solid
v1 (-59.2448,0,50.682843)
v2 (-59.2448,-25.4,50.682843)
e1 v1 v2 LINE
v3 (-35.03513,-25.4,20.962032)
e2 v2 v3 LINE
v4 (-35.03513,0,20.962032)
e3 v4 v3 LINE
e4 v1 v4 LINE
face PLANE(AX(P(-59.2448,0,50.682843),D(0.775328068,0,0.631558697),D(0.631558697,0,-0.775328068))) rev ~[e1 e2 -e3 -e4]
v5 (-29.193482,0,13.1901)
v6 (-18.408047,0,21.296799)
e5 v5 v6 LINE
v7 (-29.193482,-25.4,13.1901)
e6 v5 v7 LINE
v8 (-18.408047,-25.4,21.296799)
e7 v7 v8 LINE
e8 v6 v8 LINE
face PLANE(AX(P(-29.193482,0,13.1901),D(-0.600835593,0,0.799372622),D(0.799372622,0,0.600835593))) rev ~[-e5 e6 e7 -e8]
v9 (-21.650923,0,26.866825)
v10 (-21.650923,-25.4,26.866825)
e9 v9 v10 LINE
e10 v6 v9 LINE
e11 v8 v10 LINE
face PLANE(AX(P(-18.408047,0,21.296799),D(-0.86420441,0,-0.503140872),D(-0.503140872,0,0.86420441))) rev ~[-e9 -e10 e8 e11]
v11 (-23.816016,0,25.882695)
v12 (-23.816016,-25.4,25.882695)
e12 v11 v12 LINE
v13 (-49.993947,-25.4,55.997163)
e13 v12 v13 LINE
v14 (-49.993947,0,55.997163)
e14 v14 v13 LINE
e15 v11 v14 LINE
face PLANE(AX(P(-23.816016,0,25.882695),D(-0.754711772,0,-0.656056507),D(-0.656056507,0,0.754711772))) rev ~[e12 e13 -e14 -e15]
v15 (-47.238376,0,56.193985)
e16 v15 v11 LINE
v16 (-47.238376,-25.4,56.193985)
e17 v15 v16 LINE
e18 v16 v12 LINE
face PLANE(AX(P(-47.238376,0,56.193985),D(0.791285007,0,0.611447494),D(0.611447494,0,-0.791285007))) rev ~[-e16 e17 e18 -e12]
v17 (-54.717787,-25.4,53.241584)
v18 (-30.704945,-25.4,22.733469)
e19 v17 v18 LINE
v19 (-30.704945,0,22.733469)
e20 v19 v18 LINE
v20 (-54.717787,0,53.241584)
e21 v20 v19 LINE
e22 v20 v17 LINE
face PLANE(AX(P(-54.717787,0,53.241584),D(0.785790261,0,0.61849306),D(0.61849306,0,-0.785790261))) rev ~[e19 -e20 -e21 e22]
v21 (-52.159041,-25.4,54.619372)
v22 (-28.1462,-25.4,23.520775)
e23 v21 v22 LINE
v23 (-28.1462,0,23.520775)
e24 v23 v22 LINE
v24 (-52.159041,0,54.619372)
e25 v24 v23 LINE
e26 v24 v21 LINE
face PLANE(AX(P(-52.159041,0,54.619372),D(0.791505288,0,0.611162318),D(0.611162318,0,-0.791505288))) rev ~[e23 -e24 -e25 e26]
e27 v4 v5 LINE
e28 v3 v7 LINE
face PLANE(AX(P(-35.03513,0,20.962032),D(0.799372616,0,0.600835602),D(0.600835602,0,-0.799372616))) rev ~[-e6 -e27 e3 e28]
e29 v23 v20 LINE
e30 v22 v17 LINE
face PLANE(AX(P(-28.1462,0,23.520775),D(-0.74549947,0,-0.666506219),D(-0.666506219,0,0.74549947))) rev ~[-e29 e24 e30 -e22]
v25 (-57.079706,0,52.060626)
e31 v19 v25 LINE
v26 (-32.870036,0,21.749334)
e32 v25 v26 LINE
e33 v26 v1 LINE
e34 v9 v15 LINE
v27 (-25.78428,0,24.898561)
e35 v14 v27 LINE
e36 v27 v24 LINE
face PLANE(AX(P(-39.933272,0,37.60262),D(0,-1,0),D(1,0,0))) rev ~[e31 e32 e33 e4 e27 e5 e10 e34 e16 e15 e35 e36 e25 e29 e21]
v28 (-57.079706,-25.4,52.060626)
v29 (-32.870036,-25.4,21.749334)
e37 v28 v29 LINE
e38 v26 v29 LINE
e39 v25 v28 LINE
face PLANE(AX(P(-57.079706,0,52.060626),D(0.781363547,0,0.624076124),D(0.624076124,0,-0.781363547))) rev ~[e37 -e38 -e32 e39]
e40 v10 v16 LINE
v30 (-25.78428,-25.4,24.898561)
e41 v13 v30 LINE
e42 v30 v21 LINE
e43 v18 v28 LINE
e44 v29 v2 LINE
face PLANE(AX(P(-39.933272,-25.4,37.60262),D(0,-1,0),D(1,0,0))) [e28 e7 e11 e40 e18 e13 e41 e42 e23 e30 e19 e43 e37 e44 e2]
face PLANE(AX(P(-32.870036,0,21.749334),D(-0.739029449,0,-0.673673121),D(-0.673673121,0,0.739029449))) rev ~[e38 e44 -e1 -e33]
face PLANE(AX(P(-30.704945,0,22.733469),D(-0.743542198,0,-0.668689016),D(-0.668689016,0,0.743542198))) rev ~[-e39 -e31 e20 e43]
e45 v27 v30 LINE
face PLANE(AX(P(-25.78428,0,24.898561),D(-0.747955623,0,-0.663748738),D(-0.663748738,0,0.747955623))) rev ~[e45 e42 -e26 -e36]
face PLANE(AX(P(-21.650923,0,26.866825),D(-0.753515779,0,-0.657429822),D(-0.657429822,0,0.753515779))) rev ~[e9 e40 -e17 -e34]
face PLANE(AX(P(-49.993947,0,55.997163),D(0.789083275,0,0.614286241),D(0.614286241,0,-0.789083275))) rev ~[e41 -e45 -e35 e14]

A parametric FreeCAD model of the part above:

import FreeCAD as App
import Part
import Sketcher
Q = App.Units.Quantity

doc = App.newDocument("Part")
body = doc.addObject("PartDesign::Body", "Body")

sketch1 = body.newObject("Sketcher::SketchObject", "Sketch")
sketch1.AttachmentSupport = (doc.getObject("XZ_Plane"), [""])
sketch1.MapMode = "FlatFace"
sketch1.addGeometry(Part.LineSegment(App.Vector(-59, 51, 0), App.Vector(-35, 21, 0)), False)
sketch1.addGeometry(Part.LineSegment(App.Vector(-35, 21, 0), App.Vector(-29, 13, 0)), False)
sketch1.addGeometry(Part.LineSegment(App.Vector(-29, 13, 0), App.Vector(-18, 21, 0)), False)
sketch1.addGeometry(Part.LineSegment(App.Vector(-18, 21, 0), App.Vector(-22, 27, 0)), False)
sketch1.addGeometry(Part.LineSegment(App.Vector(-22, 27, 0), App.Vector(-47, 56, 0)), False)
sketch1.addGeometry(Part.LineSegment(App.Vector(-47, 56, 0), App.Vector(-24, 26, 0)), False)
sketch1.addGeometry(Part.LineSegment(App.Vector(-24, 26, 0), App.Vector(-50, 56, 0)), False)
sketch1.addGeometry(Part.LineSegment(App.Vector(-50, 56, 0), App.Vector(-26, 25, 0)), False)
sketch1.addGeometry(Part.LineSegment(App.Vector(-26, 25, 0), App.Vector(-52, 55, 0)), False)
sketch1.addGeometry(Part.LineSegment(App.Vector(-52, 55, 0), App.Vector(-28, 24, 0)), False)
sketch1.addGeometry(Part.LineSegment(App.Vector(-28, 24, 0), App.Vector(-55, 53, 0)), False)
sketch1.addGeometry(Part.LineSegment(App.Vector(-55, 53, 0), App.Vector(-31, 23, 0)), False)
sketch1.addGeometry(Part.LineSegment(App.Vector(-31, 23, 0), App.Vector(-57, 52, 0)), False)
sketch1.addGeometry(Part.LineSegment(App.Vector(-57, 52, 0), App.Vector(-33, 22, 0)), False)
sketch1.addGeometry(Part.LineSegment(App.Vector(-33, 22, 0), App.Vector(-59, 51, 0)), False)
sketch1.addConstraint(Sketcher.Constraint("Coincident", 0, 2, 1, 1))
sketch1.addConstraint(Sketcher.Constraint("Coincident", 1, 2, 2, 1))
sketch1.addConstraint(Sketcher.Constraint("Coincident", 2, 2, 3, 1))
sketch1.addConstraint(Sketcher.Constraint("Coincident", 3, 2, 4, 1))
sketch1.addConstraint(Sketcher.Constraint("Coincident", 4, 2, 5, 1))
sketch1.addConstraint(Sketcher.Constraint("Coincident", 5, 2, 6, 1))
sketch1.addConstraint(Sketcher.Constraint("Coincident", 6, 2, 7, 1))
sketch1.addConstraint(Sketcher.Constraint("Coincident", 7, 2, 8, 1))
sketch1.addConstraint(Sketcher.Constraint("Coincident", 8, 2, 9, 1))
sketch1.addConstraint(Sketcher.Constraint("Coincident", 9, 2, 10, 1))
sketch1.addConstraint(Sketcher.Constraint("Coincident", 10, 2, 11, 1))
sketch1.addConstraint(Sketcher.Constraint("Coincident", 11, 2, 12, 1))
sketch1.addConstraint(Sketcher.Constraint("Coincident", 12, 2, 13, 1))
sketch1.addConstraint(Sketcher.Constraint("Coincident", 13, 2, 14, 1))
sketch1.addConstraint(Sketcher.Constraint("Coincident", 14, 2, 0, 1))
sketch1.addConstraint(Sketcher.Constraint("Perpendicular", 1, 2))
sketch1.addConstraint(Sketcher.Constraint("DistanceY", -1, 1, 1, 2, 13.1901))
sketch1.addConstraint(Sketcher.Constraint("DistanceY", -1, 1, 2, 2, 21.296799))
sketch1.addConstraint(Sketcher.Constraint("DistanceX", 9, 2, -1, 1, 28.1462))
sketch1.addConstraint(Sketcher.Constraint("DistanceX", 14, 2, -1, 1, 59.2448))
sketch1.addConstraint(Sketcher.Constraint("DistanceX", 6, 2, 2, 2, 31.5859))
sketch1.addConstraint(Sketcher.Constraint("DistanceY", 10, 2, 4, 2, 2.952401))
sketch1.addConstraint(Sketcher.Constraint("Distance", 1, 9.72254))
sketch1.addConstraint(Sketcher.Constraint("Distance", 12, 39.442492))
sketch1.addConstraint(Sketcher.Constraint("DistanceX", 0, 2, -1, 1, 35.03513))
sketch1.addConstraint(Sketcher.Constraint("DistanceX", 1, 2, -1, 1, 29.193482))
sketch1.addConstraint(Sketcher.Constraint("DistanceX", 7, 2, -1, 1, 25.78428))
sketch1.addConstraint(Sketcher.Constraint("DistanceY", -1, 1, 7, 2, 24.898561))
sketch1.addConstraint(Sketcher.Constraint("DistanceX", 8, 2, -1, 1, 52.159041))
sketch1.addConstraint(Sketcher.Constraint("DistanceY", -1, 1, 8, 2, 54.619372))
sketch1.addConstraint(Sketcher.Constraint("DistanceY", -1, 1, 11, 2, 22.733469))
sketch1.addConstraint(Sketcher.Constraint("DistanceX", 1, 2, 3, 2, 7.542559))
sketch1.addConstraint(Sketcher.Constraint("DistanceY", 3, 2, 4, 2, 29.32716))
sketch1.addConstraint(Sketcher.Constraint("DistanceX", 4, 2, 2, 2, 28.830329))
sketch1.addConstraint(Sketcher.Constraint("DistanceY", 5, 2, 3, 2, 0.98413))
sketch1.addConstraint(Sketcher.Constraint("DistanceX", 5, 2, 2, 2, 5.407969))
sketch1.addConstraint(Sketcher.Constraint("DistanceY", 6, 2, 4, 2, 0.196822))
sketch1.addConstraint(Sketcher.Constraint("DistanceY", 0, 2, 6, 2, 35.035131))
sketch1.addConstraint(Sketcher.Constraint("DistanceY", 9, 2, 5, 2, 2.36192))
sketch1.addConstraint(Sketcher.Constraint("DistanceX", 10, 2, 6, 2, 4.72384))
sketch1.addConstraint(Sketcher.Constraint("DistanceX", 11, 2, 5, 2, 6.888929))
sketch1.addConstraint(Sketcher.Constraint("DistanceX", 12, 2, 10, 2, 2.361919))
sketch1.addConstraint(Sketcher.Constraint("DistanceX", 13, 2, 11, 2, 2.165091))
sketch1.addConstraint(Sketcher.Constraint("DistanceY", 13, 2, 9, 2, 1.771441))
sketch1.addConstraint(Sketcher.Constraint("DistanceY", 14, 2, 10, 2, 2.558741))
pad1 = body.newObject("PartDesign::Pad", "Pad")
pad1.Profile = sketch1
pad1.Length = Q("1 in")

sketch2 = body.newObject("Sketcher::SketchObject", "Sketch001")
sketch2.AttachmentSupport = (doc.getObject("XZ_Plane"), [""])
sketch2.MapMode = "FlatFace"
sketch2.addGeometry(Part.LineSegment(App.Vector(-59, 51, 0), App.Vector(-35, 21, 0)), False)
sketch2.addGeometry(Part.LineSegment(App.Vector(-35, 21, 0), App.Vector(-29, 13, 0)), False)
sketch2.addGeometry(Part.LineSegment(App.Vector(-29, 13, 0), App.Vector(-18, 21, 0)), False)
sketch2.addGeometry(Part.LineSegment(App.Vector(-18, 21, 0), App.Vector(-22, 27, 0)), False)
sketch2.addGeometry(Part.LineSegment(App.Vector(-22, 27, 0), App.Vector(-47, 56, 0)), False)
sketch2.addGeometry(Part.LineSegment(App.Vector(-47, 56, 0), App.Vector(-24, 26, 0)), False)
sketch2.addGeometry(Part.LineSegment(App.Vector(-24, 26, 0), App.Vector(-50, 56, 0)), False)
sketch2.addGeometry(Part.LineSegment(App.Vector(-50, 56, 0), App.Vector(-26, 25, 0)), False)
sketch2.addGeometry(Part.LineSegment(App.Vector(-26, 25, 0), App.Vector(-52, 55, 0)), False)
sketch2.addGeometry(Part.LineSegment(App.Vector(-52, 55, 0), App.Vector(-28, 24, 0)), False)
sketch2.addGeometry(Part.LineSegment(App.Vector(-28, 24, 0), App.Vector(-55, 53, 0)), False)
sketch2.addGeometry(Part.LineSegment(App.Vector(-55, 53, 0), App.Vector(-31, 23, 0)), False)
sketch2.addGeometry(Part.LineSegment(App.Vector(-31, 23, 0), App.Vector(-57, 52, 0)), False)
sketch2.addGeometry(Part.LineSegment(App.Vector(-57, 52, 0), App.Vector(-33, 22, 0)), False)
sketch2.addGeometry(Part.LineSegment(App.Vector(-33, 22, 0), App.Vector(-59, 51, 0)), False)
sketch2.addConstraint(Sketcher.Constraint("Coincident", 0, 2, 1, 1))
sketch2.addConstraint(Sketcher.Constraint("Coincident", 1, 2, 2, 1))
sketch2.addConstraint(Sketcher.Constraint("Coincident", 2, 2, 3, 1))
sketch2.addConstraint(Sketcher.Constraint("Coincident", 3, 2, 4, 1))
sketch2.addConstraint(Sketcher.Constraint("Coincident", 4, 2, 5, 1))
sketch2.addConstraint(Sketcher.Constraint("Coincident", 5, 2, 6, 1))
sketch2.addConstraint(Sketcher.Constraint("Coincident", 6, 2, 7, 1))
sketch2.addConstraint(Sketcher.Constraint("Coincident", 7, 2, 8, 1))
sketch2.addConstraint(Sketcher.Constraint("Coincident", 8, 2, 9, 1))
sketch2.addConstraint(Sketcher.Constraint("Coincident", 9, 2, 10, 1))
sketch2.addConstraint(Sketcher.Constraint("Coincident", 10, 2, 11, 1))
sketch2.addConstraint(Sketcher.Constraint("Coincident", 11, 2, 12, 1))
sketch2.addConstraint(Sketcher.Constraint("Coincident", 12, 2, 13, 1))
sketch2.addConstraint(Sketcher.Constraint("Coincident", 13, 2, 14, 1))
sketch2.addConstraint(Sketcher.Constraint("Coincident", 14, 2, 0, 1))
sketch2.addConstraint(Sketcher.Constraint("Perpendicular", 1, 2))
sketch2.addConstraint(Sketcher.Constraint("DistanceY", -1, 1, 1, 2, 13.1901))
sketch2.addConstraint(Sketcher.Constraint("DistanceY", -1, 1, 2, 2, 21.296799))
sketch2.addConstraint(Sketcher.Constraint("DistanceX", 9, 2, -1, 1, 28.1462))
sketch2.addConstraint(Sketcher.Constraint("DistanceX", 14, 2, -1, 1, 59.2448))
sketch2.addConstraint(Sketcher.Constraint("DistanceX", 6, 2, 2, 2, 31.5859))
sketch2.addConstraint(Sketcher.Constraint("DistanceY", 10, 2, 4, 2, 2.952401))
sketch2.addConstraint(Sketcher.Constraint("Distance", 1, 9.72254))
sketch2.addConstraint(Sketcher.Constraint("Distance", 12, 39.442492))
sketch2.addConstraint(Sketcher.Constraint("DistanceX", 0, 2, -1, 1, 35.03513))
sketch2.addConstraint(Sketcher.Constraint("DistanceX", 1, 2, -1, 1, 29.193482))
sketch2.addConstraint(Sketcher.Constraint("DistanceX", 7, 2, -1, 1, 25.78428))
sketch2.addConstraint(Sketcher.Constraint("DistanceY", -1, 1, 7, 2, 24.898561))
sketch2.addConstraint(Sketcher.Constraint("DistanceX", 8, 2, -1, 1, 52.159041))
sketch2.addConstraint(Sketcher.Constraint("DistanceY", -1, 1, 8, 2, 54.619372))
sketch2.addConstraint(Sketcher.Constraint("DistanceY", -1, 1, 11, 2, 22.733469))
sketch2.addConstraint(Sketcher.Constraint("DistanceX", 1, 2, 3, 2, 7.542559))
sketch2.addConstraint(Sketcher.Constraint("DistanceY", 3, 2, 4, 2, 29.32716))
sketch2.addConstraint(Sketcher.Constraint("DistanceX", 4, 2, 2, 2, 28.830329))
sketch2.addConstraint(Sketcher.Constraint("DistanceY", 5, 2, 3, 2, 0.98413))
sketch2.addConstraint(Sketcher.Constraint("DistanceX", 5, 2, 2, 2, 5.407969))
sketch2.addConstraint(Sketcher.Constraint("DistanceY", 6, 2, 4, 2, 0.196822))
sketch2.addConstraint(Sketcher.Constraint("DistanceY", 0, 2, 6, 2, 35.035131))
sketch2.addConstraint(Sketcher.Constraint("DistanceY", 9, 2, 5, 2, 2.36192))
sketch2.addConstraint(Sketcher.Constraint("DistanceX", 10, 2, 6, 2, 4.72384))
sketch2.addConstraint(Sketcher.Constraint("DistanceX", 11, 2, 5, 2, 6.888929))
sketch2.addConstraint(Sketcher.Constraint("DistanceX", 12, 2, 10, 2, 2.361919))
sketch2.addConstraint(Sketcher.Constraint("DistanceX", 13, 2, 11, 2, 2.165091))
sketch2.addConstraint(Sketcher.Constraint("DistanceY", 13, 2, 9, 2, 1.771441))
sketch2.addConstraint(Sketcher.Constraint("DistanceY", 14, 2, 10, 2, 2.558741))
pad2 = body.newObject("PartDesign::Pad", "Pad001")
pad2.Profile = sketch2
pad2.Length = Q("1 in")

doc.recompute()
